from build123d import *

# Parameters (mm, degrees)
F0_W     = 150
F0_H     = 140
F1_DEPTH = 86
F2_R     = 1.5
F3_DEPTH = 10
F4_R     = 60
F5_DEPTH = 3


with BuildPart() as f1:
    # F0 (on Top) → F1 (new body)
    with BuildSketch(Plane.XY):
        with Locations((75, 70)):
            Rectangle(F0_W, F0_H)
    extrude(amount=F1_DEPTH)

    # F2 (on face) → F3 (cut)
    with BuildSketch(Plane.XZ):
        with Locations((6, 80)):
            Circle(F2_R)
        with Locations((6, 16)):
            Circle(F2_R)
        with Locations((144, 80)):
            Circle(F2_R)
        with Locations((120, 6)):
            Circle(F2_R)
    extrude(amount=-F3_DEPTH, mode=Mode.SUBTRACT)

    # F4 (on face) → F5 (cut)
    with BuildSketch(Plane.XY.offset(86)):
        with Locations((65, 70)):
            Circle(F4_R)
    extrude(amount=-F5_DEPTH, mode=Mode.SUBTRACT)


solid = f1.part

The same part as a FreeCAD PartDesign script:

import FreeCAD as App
import Part
import Sketcher
from FreeCAD import Vector
Q = App.Units.Quantity


def add_polygon(sketch, points):
    """Adds a closed chain of lines whose ends are joined by coincident constraints."""
    first, n = sketch.GeometryCount, len(points)
    for a, b in zip(points, points[1:] + points[:1]):
        sketch.addGeometry(Part.LineSegment(App.Vector(*a, 0), App.Vector(*b, 0)), False)
    for i in range(n):
        sketch.addConstraint(Sketcher.Constraint("Coincident", first + i, 2, first + (i + 1) % n, 1))

doc = App.newDocument("Part")
params = doc.addObject("Spreadsheet::Sheet", "Params")
for row, (alias, value) in enumerate([
    ("sketch1_width", "150 mm"),
    ("sketch1_height", "140 mm"),
    ("pad1_length", "86 mm"),
    ("sketch2_diameter", "3 mm"),
    ("pocket1_length", "10 mm"),
    ("sketch3_diameter", "120 mm"),
    ("pocket2_length", "3 mm"),
], start=1):
    params.set(f"A{row}", alias)
    params.set(f"B{row}", "=" + value)
    params.setAlias(f"B{row}", alias)

body = doc.addObject("PartDesign::Body", "Body")

sketch1 = doc.addObject("Sketcher::SketchObject", "Sketch")
body.addObject(sketch1)
sketch1.AttachmentSupport = (doc.XY_Plane, [""])
sketch1.MapMode = "FlatFace"
add_polygon(sketch1, [(0, 140), (0, 0), (150, 0), (150, 140)])
sketch1.addConstraint([
    Sketcher.Constraint("Vertical", 0),
    Sketcher.Constraint("Horizontal", 1),
    Sketcher.Constraint("Vertical", 2),
    Sketcher.Constraint("Horizontal", 3),
    Sketcher.Constraint("Coincident", 0, 2, -1, 1),
    Sketcher.Constraint("DistanceX", 1, 1, 1, 2, Q("150 mm")),
    Sketcher.Constraint("DistanceY", 0, 2, 0, 1, Q("140 mm")),
])
sketch1.setExpression("Constraints[9]", "Params.sketch1_width")
sketch1.setExpression("Constraints[10]", "Params.sketch1_height")
pad1 = doc.addObject("PartDesign::Pad", "Pad")
body.addObject(pad1)
pad1.Profile = sketch1
pad1.setExpression("Length", "Params.pad1_length")

sketch2 = doc.addObject("Sketcher::SketchObject", "Sketch001")
body.addObject(sketch2)
sketch2.AttachmentSupport = (doc.XZ_Plane, [""])
sketch2.MapMode = "FlatFace"
sketch2.addGeometry([
    Part.Circle(Vector(6, 80, 0), Vector(0, 0, 1), 1.5),
    Part.Circle(Vector(6, 16, 0), Vector(0, 0, 1), 1.5),
    Part.Circle(Vector(144, 80, 0), Vector(0, 0, 1), 1.5),
    Part.Circle(Vector(120, 6, 0), Vector(0, 0, 1), 1.5),
], False)
sketch2.addConstraint([
    Sketcher.Constraint("Equal", 0, 1),
    Sketcher.Constraint("Equal", 1, 2),
    Sketcher.Constraint("Equal", 2, 3),
    Sketcher.Constraint("Horizontal", 0, 3, 2, 3),
    Sketcher.Constraint("Vertical", 0, 3, 1, 3),
    Sketcher.Constraint("Diameter", 0, Q("3 mm")),
    Sketcher.Constraint("DistanceX", -1, 1, 0, 3, Q("6 mm")),
    Sketcher.Constraint("DistanceY", -1, 1, 0, 3, Q("80 mm")),
    Sketcher.Constraint("DistanceY", -1, 1, 1, 3, Q("16 mm")),
    Sketcher.Constraint("DistanceX", -1, 1, 2, 3, Q("144 mm")),
    Sketcher.Constraint("DistanceX", -1, 1, 3, 3, Q("120 mm")),
    Sketcher.Constraint("DistanceY", -1, 1, 3, 3, Q("6 mm")),
])
sketch2.setExpression("Constraints[5]", "Params.sketch2_diameter")
pocket1 = doc.addObject("PartDesign::Pocket", "Pocket")
body.addObject(pocket1)
pocket1.Profile = sketch2
pocket1.setExpression("Length", "Params.pocket1_length")

sketch3 = doc.addObject("Sketcher::SketchObject", "Sketch002")
body.addObject(sketch3)
sketch3.AttachmentSupport = (doc.XY_Plane, [""])
sketch3.MapMode = "FlatFace"
sketch3.AttachmentOffset = App.Placement(Vector(0, 0, 86), App.Rotation())
sketch3.addGeometry(Part.Circle(Vector(65, 70, 0), Vector(0, 0, 1), 60), False)
sketch3.addConstraint([
    Sketcher.Constraint("Diameter", 0, Q("120 mm")),
    Sketcher.Constraint("DistanceX", -1, 1, 0, 3, Q("65 mm")),
    Sketcher.Constraint("DistanceY", -1, 1, 0, 3, Q("70 mm")),
])
sketch3.setExpression("Constraints[0]", "Params.sketch3_diameter")
pocket2 = doc.addObject("PartDesign::Pocket", "Pocket001")
body.addObject(pocket2)
pocket2.Profile = sketch3
pocket2.setExpression("Length", "Params.pocket2_length")

doc.recompute()
